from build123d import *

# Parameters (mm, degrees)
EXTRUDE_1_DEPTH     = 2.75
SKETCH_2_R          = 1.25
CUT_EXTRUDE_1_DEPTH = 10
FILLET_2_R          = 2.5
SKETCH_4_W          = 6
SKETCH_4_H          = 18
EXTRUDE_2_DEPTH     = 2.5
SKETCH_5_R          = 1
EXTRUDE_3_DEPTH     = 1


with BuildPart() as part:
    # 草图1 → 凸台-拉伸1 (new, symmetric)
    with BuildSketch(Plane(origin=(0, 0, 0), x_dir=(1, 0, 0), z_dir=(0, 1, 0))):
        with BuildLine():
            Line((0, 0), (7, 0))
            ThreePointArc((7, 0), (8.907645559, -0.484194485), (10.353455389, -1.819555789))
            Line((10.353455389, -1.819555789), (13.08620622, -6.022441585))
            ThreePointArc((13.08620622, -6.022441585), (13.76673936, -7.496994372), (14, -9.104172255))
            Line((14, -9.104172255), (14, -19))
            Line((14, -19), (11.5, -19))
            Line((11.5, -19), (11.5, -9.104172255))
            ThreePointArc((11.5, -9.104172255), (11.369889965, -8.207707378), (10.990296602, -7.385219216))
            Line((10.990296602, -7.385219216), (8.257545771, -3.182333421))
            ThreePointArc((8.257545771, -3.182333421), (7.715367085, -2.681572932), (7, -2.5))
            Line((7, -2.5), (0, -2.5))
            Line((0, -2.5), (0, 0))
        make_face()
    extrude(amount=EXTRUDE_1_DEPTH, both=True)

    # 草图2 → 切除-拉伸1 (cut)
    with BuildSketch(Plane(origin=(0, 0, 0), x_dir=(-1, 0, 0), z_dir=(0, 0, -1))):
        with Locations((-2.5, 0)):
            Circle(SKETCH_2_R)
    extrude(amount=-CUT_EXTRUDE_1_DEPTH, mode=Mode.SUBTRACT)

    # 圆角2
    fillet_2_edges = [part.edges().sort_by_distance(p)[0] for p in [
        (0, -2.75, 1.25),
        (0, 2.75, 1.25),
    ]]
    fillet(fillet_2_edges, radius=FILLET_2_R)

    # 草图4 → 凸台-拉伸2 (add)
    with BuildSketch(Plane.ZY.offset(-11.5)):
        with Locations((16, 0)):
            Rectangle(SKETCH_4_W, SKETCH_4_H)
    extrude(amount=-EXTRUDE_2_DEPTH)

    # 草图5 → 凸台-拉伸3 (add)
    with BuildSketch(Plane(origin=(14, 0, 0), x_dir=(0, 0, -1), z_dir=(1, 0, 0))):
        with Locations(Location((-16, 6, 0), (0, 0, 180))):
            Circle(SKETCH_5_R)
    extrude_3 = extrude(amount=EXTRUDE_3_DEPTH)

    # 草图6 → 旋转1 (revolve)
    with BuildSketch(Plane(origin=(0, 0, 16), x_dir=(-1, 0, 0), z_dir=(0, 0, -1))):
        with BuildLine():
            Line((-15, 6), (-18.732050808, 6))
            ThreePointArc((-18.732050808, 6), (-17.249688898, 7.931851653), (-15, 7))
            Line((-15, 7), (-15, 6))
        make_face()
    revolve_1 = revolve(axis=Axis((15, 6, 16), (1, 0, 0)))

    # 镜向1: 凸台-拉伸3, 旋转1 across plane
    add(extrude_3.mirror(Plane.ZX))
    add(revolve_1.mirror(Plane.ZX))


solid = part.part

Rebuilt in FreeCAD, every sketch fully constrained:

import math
import FreeCAD as App
import Part
import Sketcher

V = App.Vector


def edges_at(feature, points):
    """Names of the edges that pass closest to the given points."""
    edges = feature.Shape.Edges
    near = lambda p: min(range(len(edges)), key=lambda i: edges[i].distToShape(Part.Vertex(*p))[0])
    return sorted({f"Edge{near(p) + 1}" for p in points})


def add_polygon(sketch, points):
    """Adds a closed chain of lines whose ends are joined by coincident constraints."""
    first, n = sketch.GeometryCount, len(points)
    for a, b in zip(points, points[1:] + points[:1]):
        sketch.addGeometry(Part.LineSegment(App.Vector(*a, 0), App.Vector(*b, 0)), False)
    for i in range(n):
        sketch.addConstraint(Sketcher.Constraint("Coincident", first + i, 2, first + (i + 1) % n, 1))

doc = App.newDocument("Part")
body = doc.addObject("PartDesign::Body", "Body")

sketch1 = body.newObject("Sketcher::SketchObject", "Sketch")
sketch1.AttachmentSupport = (doc.getObject("XZ_Plane"), [""])
sketch1.MapMode = "FlatFace"
sketch1.addGeometry([
    Part.LineSegment(V(7, 0, 0), V(0, 0, 0)),
    Part.LineSegment(V(0, 0, 0), V(0, 2.5, 0)),
    Part.LineSegment(V(0, 2.5, 0), V(7, 2.5, 0)),
    Part.ArcOfCircle(Part.Circle(V(7, 4, 0), V(0, 0, 1), 1.5), math.radians(-90), math.radians(-33)),
    Part.LineSegment(V(8.3, 3.2, 0), V(11, 7.4, 0)),
    Part.ArcOfCircle(Part.Circle(V(8.3, 9.1, 0), V(0, 0, 1), 3.2), math.radians(-33), math.radians(0)),
    Part.LineSegment(V(11.5, 9.1, 0), V(11.5, 19, 0)),
    Part.LineSegment(V(11.5, 19, 0), V(14, 19, 0)),
    Part.LineSegment(V(14, 19, 0), V(14, 9.1, 0)),
    Part.ArcOfCircle(Part.Circle(V(8.3, 9.1, 0), V(0, 0, 1), 5.7), math.radians(-33), math.radians(0)),
    Part.LineSegment(V(13.1, 6, 0), V(10.4, 1.8, 0)),
    Part.ArcOfCircle(Part.Circle(V(7, 4, 0), V(0, 0, 1), 4), math.radians(-90), math.radians(-33)),
], False)
sketch1.addConstraint([
    Sketcher.Constraint("Coincident", 0, 2, 1, 1),
    Sketcher.Constraint("Coincident", 1, 2, 2, 1),
    Sketcher.Constraint("Tangent", 2, 2, 3, 1),
    Sketcher.Constraint("Tangent", 3, 2, 4, 1),
    Sketcher.Constraint("Tangent", 4, 2, 5, 1),
    Sketcher.Constraint("Tangent", 5, 2, 6, 1),
    Sketcher.Constraint("Coincident", 6, 2, 7, 1),
    Sketcher.Constraint("Coincident", 7, 2, 8, 1),
    Sketcher.Constraint("Tangent", 8, 2, 9, 2),
    Sketcher.Constraint("Tangent", 9, 1, 10, 1),
    Sketcher.Constraint("Tangent", 10, 2, 11, 2),
    Sketcher.Constraint("Tangent", 11, 1, 0, 1),
    Sketcher.Constraint("Horizontal", 0),
    Sketcher.Constraint("Vertical", 1),
    Sketcher.Constraint("Horizontal", 2),
    Sketcher.Constraint("Vertical", 6),
    Sketcher.Constraint("Horizontal", 7),
    Sketcher.Constraint("Vertical", 8),
    Sketcher.Constraint("Coincident", 0, 2, -1, 1),
    Sketcher.Constraint("Coincident", 9, 3, 5, 3),
    Sketcher.Constraint("Coincident", 11, 3, 3, 3),
    Sketcher.Constraint("Parallel", 4, 10),
    Sketcher.Constraint("Radius", 11, 4.0),
    Sketcher.Constraint("Radius", 3, 1.5),
    Sketcher.Constraint("DistanceX", 0, 2, 0, 1, 7.0),
    Sketcher.Constraint("DistanceY", -1, 1, 6, 2, 19.0),
    Sketcher.Constraint("DistanceX", -1, 1, 7, 2, 14.0),
    Sketcher.Constraint("Radius", 5, 3.1534),
    Sketcher.Constraint("Distance", 4, 5.0132),
])
pad1 = body.newObject("PartDesign::Pad", "Pad")
pad1.Profile = sketch1
pad1.Length = 5.5
pad1.Midplane = True

sketch2 = body.newObject("Sketcher::SketchObject", "Sketch001")
sketch2.AttachmentSupport = (doc.getObject("XY_Plane"), [""])
sketch2.MapMode = "FlatFace"
sketch2.addGeometry(Part.Circle(V(2.5, 0, 0), V(0, 0, 1), 1.2), False)
sketch2.addConstraint([
    Sketcher.Constraint("PointOnObject", 0, 3, -1),
    Sketcher.Constraint("Diameter", 0, 2.5),
    Sketcher.Constraint("DistanceX", -1, 1, 0, 3, 2.5),
])
pocket1 = body.newObject("PartDesign::Pocket", "Pocket")
pocket1.Profile = sketch2
pocket1.Length = 10
pocket1.Reversed = True
doc.recompute()

fillet = body.newObject("PartDesign::Fillet", "Fillet")
fillet.Base = (pocket1, edges_at(pocket1, [(0, -2.75, 1.25), (0, 2.75, 1.25)]))
fillet.Radius = 2.5

sketch3 = body.newObject("Sketcher::SketchObject", "Sketch002")
sketch3.AttachmentSupport = (doc.getObject("YZ_Plane"), [""])
sketch3.MapMode = "FlatFace"
sketch3.AttachmentOffset = App.Placement(V(0, 0, 11.5), App.Rotation())
add_polygon(sketch3, [(9, 13), (-9, 13), (-9, 19), (9, 19)])
sketch3.addConstraint([
    Sketcher.Constraint("Horizontal", 0),
    Sketcher.Constraint("Vertical", 1),
    Sketcher.Constraint("Horizontal", 2),
    Sketcher.Constraint("Vertical", 3),
    Sketcher.Constraint("DistanceX", 0, 2, 0, 1, 18.0),
    Sketcher.Constraint("DistanceY", 1, 1, 1, 2, 6.0),
    Sketcher.Constraint("DistanceX", 0, 2, -1, 1, 9.0),
    Sketcher.Constraint("DistanceY", -1, 1, 0, 2, 13.0),
])
pad2 = body.newObject("PartDesign::Pad", "Pad001")
pad2.Profile = sketch3
pad2.Length = 2.5

sketch4 = body.newObject("Sketcher::SketchObject", "Sketch003")
sketch4.AttachmentSupport = (doc.getObject("YZ_Plane"), [""])
sketch4.MapMode = "FlatFace"
sketch4.AttachmentOffset = App.Placement(V(0, 0, 14), App.Rotation())
sketch4.addGeometry(Part.Circle(V(6, 16, 0), V(0, 0, 1), 1), False)
sketch4.addConstraint([
    Sketcher.Constraint("Diameter", 0, 2.0),
    Sketcher.Constraint("DistanceX", -1, 1, 0, 3, 6.0),
    Sketcher.Constraint("DistanceY", -1, 1, 0, 3, 16.0),
])
pad3 = body.newObject("PartDesign::Pad", "Pad002")
pad3.Profile = sketch4
pad3.Length = 1

sketch5 = body.newObject("Sketcher::SketchObject", "Sketch004")
sketch5.AttachmentSupport = (doc.getObject("XY_Plane"), [""])
sketch5.MapMode = "FlatFace"
sketch5.AttachmentOffset = App.Placement(V(0, 0, 16), App.Rotation())
sketch5.addGeometry([
    Part.LineSegment(V(18.7, 6, 0), V(15, 6, 0)),
    Part.LineSegment(V(15, 6, 0), V(15, 7, 0)),
    Part.ArcOfCircle(Part.Circle(V(16.7, 6, 0), V(0, 0, 1), 2), math.radians(0), math.radians(150)),
], False)
sketch5.addGeometry(Part.LineSegment(V(15, 6, 0), V(18.7, 6, 0)), True)
sketch5.addConstraint([
    Sketcher.Constraint("Coincident", 0, 2, 1, 1),
    Sketcher.Constraint("Coincident", 1, 2, 2, 2),
    Sketcher.Constraint("Coincident", 2, 1, 0, 1),
    Sketcher.Constraint("Horizontal", 0),
    Sketcher.Constraint("Vertical", 1),
    Sketcher.Constraint("Horizontal", 3),
    Sketcher.Constraint("Coincident", 3, 1, 0, 2),
    Sketcher.Constraint("Horizontal", 2, 3, 0, 2),
    Sketcher.Constraint("Equal", 0, 3),
    Sketcher.Constraint("Radius", 2, 2.0),
    Sketcher.Constraint("DistanceY", 1, 1, 1, 2, 1.0),
    Sketcher.Constraint("DistanceY", -1, 1, 2, 3, 6.0),
    Sketcher.Constraint("DistanceX", -1, 1, 0, 2, 15.0),
])
revolution = body.newObject("PartDesign::Revolution", "Revolution")
revolution.Profile = sketch5
revolution.ReferenceAxis = (sketch5, ["Axis0"])
revolution.Angle = 360
doc.recompute()

mirrored = body.newObject("PartDesign::Mirrored", "Mirrored")
mirrored.Originals = [pad3, revolution]
mirrored.MirrorPlane = (doc.getObject("XZ_Plane"), [""])
body.Tip = mirrored

doc.recompute()
